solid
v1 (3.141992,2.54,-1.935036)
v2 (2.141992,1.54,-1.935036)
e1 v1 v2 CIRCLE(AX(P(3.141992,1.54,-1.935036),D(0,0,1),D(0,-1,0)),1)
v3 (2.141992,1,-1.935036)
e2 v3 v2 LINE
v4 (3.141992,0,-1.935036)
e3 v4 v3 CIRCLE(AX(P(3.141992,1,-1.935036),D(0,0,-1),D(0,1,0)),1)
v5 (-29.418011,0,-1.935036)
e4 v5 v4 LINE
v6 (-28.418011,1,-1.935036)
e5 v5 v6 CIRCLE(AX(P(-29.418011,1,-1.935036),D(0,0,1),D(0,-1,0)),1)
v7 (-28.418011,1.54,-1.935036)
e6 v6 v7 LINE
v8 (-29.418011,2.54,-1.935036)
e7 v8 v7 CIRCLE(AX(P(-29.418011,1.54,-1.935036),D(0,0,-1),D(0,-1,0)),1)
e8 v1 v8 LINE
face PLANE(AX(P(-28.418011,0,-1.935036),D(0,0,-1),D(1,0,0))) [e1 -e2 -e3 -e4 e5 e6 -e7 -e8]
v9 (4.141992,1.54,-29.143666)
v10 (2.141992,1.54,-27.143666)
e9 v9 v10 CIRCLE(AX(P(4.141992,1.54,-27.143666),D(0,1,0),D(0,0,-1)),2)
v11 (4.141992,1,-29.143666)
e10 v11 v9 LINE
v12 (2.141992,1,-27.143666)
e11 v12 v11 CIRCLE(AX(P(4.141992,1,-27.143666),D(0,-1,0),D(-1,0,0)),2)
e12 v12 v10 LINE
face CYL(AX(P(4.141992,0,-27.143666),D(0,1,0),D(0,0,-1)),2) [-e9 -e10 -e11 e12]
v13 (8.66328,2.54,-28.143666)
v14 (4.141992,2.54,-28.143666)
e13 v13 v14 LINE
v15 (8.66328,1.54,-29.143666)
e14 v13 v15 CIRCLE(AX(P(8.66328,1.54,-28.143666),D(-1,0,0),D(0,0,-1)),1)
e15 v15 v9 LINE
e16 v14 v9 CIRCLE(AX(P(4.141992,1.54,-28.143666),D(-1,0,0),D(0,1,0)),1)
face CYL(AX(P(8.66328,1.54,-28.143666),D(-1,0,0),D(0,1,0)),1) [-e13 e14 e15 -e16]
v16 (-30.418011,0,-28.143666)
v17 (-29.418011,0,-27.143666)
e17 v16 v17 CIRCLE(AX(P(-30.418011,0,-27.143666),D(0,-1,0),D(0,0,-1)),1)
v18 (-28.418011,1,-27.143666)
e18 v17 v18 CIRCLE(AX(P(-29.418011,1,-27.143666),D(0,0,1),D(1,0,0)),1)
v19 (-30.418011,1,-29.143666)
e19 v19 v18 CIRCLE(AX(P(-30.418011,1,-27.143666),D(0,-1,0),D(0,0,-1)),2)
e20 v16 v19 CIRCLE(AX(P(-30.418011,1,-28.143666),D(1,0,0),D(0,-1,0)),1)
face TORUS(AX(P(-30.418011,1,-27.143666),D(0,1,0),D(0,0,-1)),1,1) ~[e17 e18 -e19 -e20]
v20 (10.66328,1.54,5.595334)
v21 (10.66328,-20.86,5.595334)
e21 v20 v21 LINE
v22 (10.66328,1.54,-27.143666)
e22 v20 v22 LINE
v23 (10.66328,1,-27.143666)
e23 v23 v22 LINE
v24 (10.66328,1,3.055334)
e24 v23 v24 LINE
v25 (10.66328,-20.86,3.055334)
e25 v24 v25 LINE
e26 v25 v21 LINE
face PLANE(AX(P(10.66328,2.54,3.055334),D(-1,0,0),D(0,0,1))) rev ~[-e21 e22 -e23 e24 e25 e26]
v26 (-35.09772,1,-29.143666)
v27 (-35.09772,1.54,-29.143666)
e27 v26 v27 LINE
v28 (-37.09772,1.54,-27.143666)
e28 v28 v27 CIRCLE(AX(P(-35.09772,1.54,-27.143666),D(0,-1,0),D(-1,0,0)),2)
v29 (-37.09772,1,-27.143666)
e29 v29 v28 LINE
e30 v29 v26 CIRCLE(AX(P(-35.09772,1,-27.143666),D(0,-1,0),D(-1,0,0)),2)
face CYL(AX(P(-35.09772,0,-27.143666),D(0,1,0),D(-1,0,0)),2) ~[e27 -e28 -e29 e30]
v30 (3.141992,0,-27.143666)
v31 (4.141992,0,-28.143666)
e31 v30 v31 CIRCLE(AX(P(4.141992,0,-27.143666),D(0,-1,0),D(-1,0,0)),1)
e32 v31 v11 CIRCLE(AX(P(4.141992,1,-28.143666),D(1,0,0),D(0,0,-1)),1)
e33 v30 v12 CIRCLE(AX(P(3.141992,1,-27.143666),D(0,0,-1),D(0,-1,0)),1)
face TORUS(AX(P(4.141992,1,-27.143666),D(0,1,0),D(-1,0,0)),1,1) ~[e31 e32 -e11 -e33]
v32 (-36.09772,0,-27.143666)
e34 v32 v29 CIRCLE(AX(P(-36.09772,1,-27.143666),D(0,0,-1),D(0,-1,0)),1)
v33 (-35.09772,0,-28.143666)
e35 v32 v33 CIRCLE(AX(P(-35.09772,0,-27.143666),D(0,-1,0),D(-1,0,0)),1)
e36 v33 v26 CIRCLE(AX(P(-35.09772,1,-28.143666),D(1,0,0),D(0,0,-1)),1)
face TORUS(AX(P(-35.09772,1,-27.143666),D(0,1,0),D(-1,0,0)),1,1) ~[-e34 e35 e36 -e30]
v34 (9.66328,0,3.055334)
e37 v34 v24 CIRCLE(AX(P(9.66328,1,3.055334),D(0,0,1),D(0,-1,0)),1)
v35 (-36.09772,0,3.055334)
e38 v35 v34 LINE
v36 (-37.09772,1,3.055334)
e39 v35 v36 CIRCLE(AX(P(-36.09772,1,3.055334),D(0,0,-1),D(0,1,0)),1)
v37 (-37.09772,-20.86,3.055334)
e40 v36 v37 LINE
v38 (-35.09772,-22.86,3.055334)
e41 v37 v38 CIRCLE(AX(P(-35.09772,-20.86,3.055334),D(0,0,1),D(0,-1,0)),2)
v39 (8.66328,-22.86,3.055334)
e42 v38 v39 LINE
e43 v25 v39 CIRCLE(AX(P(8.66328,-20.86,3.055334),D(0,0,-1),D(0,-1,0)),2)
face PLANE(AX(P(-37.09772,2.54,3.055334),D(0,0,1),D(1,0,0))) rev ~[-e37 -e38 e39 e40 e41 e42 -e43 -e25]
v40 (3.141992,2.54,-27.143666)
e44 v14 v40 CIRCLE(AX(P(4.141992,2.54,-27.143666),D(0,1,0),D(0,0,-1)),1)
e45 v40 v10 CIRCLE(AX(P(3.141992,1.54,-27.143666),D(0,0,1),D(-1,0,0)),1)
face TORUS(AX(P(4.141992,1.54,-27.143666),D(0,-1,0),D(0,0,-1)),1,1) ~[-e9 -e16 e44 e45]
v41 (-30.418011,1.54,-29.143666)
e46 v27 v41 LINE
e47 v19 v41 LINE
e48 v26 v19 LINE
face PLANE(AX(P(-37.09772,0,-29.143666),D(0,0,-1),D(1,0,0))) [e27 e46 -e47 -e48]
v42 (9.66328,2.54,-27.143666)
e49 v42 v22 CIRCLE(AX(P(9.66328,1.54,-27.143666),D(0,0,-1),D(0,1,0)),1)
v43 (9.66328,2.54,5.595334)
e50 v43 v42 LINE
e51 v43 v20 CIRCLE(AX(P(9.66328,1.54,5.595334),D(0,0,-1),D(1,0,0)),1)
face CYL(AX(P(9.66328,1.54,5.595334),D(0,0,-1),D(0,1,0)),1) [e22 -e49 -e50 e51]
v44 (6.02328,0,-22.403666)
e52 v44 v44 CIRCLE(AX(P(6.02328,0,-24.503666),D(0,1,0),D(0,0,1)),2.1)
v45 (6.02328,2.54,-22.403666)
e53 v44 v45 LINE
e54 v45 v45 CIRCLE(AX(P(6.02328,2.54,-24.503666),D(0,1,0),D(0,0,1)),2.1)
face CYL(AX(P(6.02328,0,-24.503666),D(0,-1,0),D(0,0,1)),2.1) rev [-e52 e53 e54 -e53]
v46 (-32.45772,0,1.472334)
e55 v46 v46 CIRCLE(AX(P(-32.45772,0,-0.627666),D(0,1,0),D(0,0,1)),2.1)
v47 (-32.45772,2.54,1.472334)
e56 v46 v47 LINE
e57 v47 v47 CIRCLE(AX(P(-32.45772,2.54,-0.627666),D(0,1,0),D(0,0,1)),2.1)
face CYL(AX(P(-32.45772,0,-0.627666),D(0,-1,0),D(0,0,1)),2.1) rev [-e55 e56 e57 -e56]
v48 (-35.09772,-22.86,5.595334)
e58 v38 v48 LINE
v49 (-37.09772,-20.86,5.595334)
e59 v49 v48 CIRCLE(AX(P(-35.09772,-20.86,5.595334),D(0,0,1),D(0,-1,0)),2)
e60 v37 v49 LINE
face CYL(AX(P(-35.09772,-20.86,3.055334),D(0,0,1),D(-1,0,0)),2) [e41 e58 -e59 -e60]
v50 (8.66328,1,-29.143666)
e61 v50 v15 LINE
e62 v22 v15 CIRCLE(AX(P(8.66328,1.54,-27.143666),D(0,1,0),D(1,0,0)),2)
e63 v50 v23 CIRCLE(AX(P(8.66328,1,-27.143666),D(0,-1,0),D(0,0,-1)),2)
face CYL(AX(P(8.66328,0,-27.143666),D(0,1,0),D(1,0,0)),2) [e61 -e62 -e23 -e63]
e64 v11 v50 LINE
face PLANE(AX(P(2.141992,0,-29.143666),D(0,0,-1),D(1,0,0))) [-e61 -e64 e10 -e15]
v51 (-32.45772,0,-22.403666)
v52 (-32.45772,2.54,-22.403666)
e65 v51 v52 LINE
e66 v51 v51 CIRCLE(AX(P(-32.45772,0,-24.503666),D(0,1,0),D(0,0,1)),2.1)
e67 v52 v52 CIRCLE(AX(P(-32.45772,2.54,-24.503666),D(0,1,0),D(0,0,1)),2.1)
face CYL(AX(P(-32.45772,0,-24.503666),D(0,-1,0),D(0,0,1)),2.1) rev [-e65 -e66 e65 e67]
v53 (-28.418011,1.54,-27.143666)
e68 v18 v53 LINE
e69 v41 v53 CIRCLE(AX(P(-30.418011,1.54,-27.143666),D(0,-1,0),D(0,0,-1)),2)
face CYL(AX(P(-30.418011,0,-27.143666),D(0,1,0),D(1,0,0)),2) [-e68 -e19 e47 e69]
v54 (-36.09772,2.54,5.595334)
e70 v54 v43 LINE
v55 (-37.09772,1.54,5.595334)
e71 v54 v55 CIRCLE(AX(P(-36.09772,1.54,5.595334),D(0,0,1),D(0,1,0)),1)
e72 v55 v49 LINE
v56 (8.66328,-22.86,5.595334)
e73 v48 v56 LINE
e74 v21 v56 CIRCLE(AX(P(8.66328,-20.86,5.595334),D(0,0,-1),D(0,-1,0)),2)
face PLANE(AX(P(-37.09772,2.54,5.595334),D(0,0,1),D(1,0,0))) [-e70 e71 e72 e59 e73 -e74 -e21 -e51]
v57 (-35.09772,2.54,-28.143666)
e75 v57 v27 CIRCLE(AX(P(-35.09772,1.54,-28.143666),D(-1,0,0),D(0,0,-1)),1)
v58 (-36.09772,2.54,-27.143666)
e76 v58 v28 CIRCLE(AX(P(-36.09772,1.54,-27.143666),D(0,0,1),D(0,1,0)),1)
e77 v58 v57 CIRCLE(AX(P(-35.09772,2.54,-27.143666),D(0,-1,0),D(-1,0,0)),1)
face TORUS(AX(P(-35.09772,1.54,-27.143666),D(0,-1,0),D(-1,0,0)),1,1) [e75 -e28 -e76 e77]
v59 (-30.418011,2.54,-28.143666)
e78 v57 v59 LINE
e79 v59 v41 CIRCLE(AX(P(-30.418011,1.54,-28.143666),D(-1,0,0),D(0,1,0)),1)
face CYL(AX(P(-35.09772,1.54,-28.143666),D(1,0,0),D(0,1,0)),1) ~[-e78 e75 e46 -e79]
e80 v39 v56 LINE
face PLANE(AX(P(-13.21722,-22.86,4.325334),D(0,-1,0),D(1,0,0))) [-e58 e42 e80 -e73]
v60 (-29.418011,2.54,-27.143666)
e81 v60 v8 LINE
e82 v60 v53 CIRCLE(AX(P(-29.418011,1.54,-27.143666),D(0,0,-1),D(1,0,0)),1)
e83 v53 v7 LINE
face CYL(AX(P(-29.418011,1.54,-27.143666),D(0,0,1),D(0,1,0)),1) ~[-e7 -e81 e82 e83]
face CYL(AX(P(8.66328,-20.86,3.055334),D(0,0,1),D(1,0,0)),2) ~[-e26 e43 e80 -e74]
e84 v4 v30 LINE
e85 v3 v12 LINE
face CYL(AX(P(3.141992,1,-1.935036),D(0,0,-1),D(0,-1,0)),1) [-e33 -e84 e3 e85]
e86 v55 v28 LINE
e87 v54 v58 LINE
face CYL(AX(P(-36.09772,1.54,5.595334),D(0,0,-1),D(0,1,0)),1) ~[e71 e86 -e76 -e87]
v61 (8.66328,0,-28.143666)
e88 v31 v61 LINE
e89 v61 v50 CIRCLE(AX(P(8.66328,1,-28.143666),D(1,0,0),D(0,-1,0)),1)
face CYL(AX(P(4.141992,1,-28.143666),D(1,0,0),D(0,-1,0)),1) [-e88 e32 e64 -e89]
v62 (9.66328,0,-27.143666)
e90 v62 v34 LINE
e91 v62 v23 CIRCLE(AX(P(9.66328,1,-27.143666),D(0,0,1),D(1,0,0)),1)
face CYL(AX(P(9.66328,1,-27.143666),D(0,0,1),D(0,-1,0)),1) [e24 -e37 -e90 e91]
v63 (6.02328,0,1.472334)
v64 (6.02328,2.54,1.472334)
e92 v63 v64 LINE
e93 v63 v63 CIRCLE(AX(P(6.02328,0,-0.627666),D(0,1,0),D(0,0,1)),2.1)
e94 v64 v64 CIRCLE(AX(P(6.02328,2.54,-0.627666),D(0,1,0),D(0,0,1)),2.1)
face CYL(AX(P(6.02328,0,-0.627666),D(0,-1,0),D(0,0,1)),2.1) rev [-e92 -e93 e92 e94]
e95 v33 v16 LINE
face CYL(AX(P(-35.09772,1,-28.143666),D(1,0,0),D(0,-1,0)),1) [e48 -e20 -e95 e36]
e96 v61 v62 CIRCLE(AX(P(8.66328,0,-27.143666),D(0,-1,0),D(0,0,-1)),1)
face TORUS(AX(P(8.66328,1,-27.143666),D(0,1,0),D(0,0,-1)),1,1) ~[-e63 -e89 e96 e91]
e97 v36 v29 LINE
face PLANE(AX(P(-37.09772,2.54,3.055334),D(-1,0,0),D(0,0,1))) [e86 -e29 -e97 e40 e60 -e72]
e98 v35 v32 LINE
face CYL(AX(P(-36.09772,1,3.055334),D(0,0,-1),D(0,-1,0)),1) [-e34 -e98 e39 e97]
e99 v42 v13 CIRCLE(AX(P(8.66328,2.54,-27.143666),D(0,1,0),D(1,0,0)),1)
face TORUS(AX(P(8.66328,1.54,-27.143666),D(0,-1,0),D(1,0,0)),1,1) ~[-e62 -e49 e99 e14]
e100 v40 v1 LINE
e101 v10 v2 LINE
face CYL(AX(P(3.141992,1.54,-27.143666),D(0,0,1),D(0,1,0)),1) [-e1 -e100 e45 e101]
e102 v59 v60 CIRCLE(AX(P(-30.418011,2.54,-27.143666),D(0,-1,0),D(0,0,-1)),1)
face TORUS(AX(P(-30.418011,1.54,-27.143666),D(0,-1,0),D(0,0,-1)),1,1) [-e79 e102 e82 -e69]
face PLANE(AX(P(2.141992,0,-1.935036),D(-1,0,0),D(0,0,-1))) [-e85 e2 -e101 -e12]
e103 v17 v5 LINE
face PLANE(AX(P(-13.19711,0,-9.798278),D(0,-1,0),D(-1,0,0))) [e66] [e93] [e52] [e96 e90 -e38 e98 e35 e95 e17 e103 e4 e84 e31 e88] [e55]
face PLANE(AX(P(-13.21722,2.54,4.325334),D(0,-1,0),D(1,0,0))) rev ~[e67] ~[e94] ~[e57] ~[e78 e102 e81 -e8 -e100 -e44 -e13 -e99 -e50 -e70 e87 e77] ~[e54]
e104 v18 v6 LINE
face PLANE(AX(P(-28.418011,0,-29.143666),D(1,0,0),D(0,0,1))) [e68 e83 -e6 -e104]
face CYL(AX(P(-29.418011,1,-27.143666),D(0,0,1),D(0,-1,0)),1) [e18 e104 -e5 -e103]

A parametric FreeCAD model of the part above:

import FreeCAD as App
import Part
import Sketcher


def edges_at(feature, points):
    """Names of the edges that pass closest to the given points."""
    edges = feature.Shape.Edges
    near = lambda p: min(range(len(edges)), key=lambda i: edges[i].distToShape(Part.Vertex(*p))[0])
    return sorted({f"Edge{near(p) + 1}" for p in points})


def add_polygon(sketch, points):
    """Adds a closed chain of lines whose ends are joined by coincident constraints."""
    first, n = sketch.GeometryCount, len(points)
    for a, b in zip(points, points[1:] + points[:1]):
        sketch.addGeometry(Part.LineSegment(App.Vector(*a, 0), App.Vector(*b, 0)), False)
    for i in range(n):
        sketch.addConstraint(Sketcher.Constraint("Coincident", first + i, 2, first + (i + 1) % n, 1))

doc = App.newDocument("Part")
body = doc.addObject("PartDesign::Body", "Body")

sketch1 = doc.addObject("Sketcher::SketchObject", "Sketch")
body.addObject(sketch1)
sketch1.AttachmentSupport = (doc.XZ_Plane, [""])
sketch1.MapMode = "FlatFace"
add_polygon(sketch1, [(2.1, -1.9), (-28.4, -1.9), (-28.4, -29.1), (-37.1, -29.1), (-37.1, 3.1), (10.7, 3.1), (10.7, -29.1), (2.1, -29.1)])
sketch1.addGeometry(Part.Circle(App.Vector(6, -0.6, 0), App.Vector(0, 0, 1), 2.1), False)
sketch1.addGeometry(Part.Circle(App.Vector(-32.5, -0.6, 0), App.Vector(0, 0, 1), 2.1), False)
sketch1.addGeometry(Part.Circle(App.Vector(6, -24.5, 0), App.Vector(0, 0, 1), 2.1), False)
sketch1.addGeometry(Part.Circle(App.Vector(-32.5, -24.5, 0), App.Vector(0, 0, 1), 2.1), False)
sketch1.addConstraint([
    Sketcher.Constraint("Horizontal", 0),
    Sketcher.Constraint("Vertical", 1),
    Sketcher.Constraint("Horizontal", 2),
    Sketcher.Constraint("Vertical", 3),
    Sketcher.Constraint("Horizontal", 4),
    Sketcher.Constraint("Vertical", 5),
    Sketcher.Constraint("Horizontal", 6),
    Sketcher.Constraint("Vertical", 7),
    Sketcher.Constraint("Equal", 8, 9),
    Sketcher.Constraint("Equal", 9, 10),
    Sketcher.Constraint("Equal", 10, 11),
    Sketcher.Constraint("Horizontal", 8, 3, 9, 3),
    Sketcher.Constraint("Horizontal", 10, 3, 11, 3),
    Sketcher.Constraint("Horizontal", 2, 2, 5, 2),
    Sketcher.Constraint("Vertical", 8, 3, 10, 3),
    Sketcher.Constraint("Vertical", 9, 3, 11, 3),
    Sketcher.Constraint("Diameter", 8, 4.2),
    Sketcher.Constraint("DistanceX", 4, 1, 4, 2, 47.761),
    Sketcher.Constraint("DistanceY", 3, 1, 3, 2, 32.199),
    Sketcher.Constraint("DistanceY", 1, 2, 11, 3, 4.64),
    Sketcher.Constraint("DistanceX", 2, 2, 11, 3, 4.64),
    Sketcher.Constraint("DistanceX", 8, 3, 4, 2, 4.64),
    Sketcher.Constraint("DistanceY", 10, 3, 8, 3, 23.876),
    Sketcher.Constraint("DistanceX", 2, 2, 2, 1, 8.679709),
    Sketcher.Constraint("DistanceX", 6, 2, 6, 1, 8.521288),
    Sketcher.Constraint("DistanceY", 1, 2, 1, 1, 27.20863),
    Sketcher.Constraint("DistanceX", -1, 1, 8, 3, 6.02328),
    Sketcher.Constraint("DistanceY", 8, 3, -1, 1, 0.627666),
])
pad1 = doc.addObject("PartDesign::Pad", "Pad")
body.addObject(pad1)
pad1.Profile = sketch1
pad1.Length = 2.54
pad1.Reversed = True

sketch2 = doc.addObject("Sketcher::SketchObject", "Sketch001")
body.addObject(sketch2)
sketch2.AttachmentSupport = (doc.XZ_Plane, [""])
sketch2.MapMode = "FlatFace"
sketch2.AttachmentOffset = App.Placement(App.Vector(0, 0, -2.54), App.Rotation())
add_polygon(sketch2, [(-37.1, 5.6), (-37.1, 3.1), (10.7, 3.1), (10.7, 5.6)])
sketch2.addConstraint([
    Sketcher.Constraint("Vertical", 0),
    Sketcher.Constraint("Horizontal", 1),
    Sketcher.Constraint("Vertical", 2),
    Sketcher.Constraint("Horizontal", 3),
    Sketcher.Constraint("DistanceY", 0, 2, 0, 1, 2.54),
    Sketcher.Constraint("DistanceX", 1, 1, 1, 2, 47.761),
    Sketcher.Constraint("DistanceX", 0, 2, -1, 1, 37.09772),
    Sketcher.Constraint("DistanceY", -1, 1, 0, 2, 3.055334),
])
pad2 = doc.addObject("PartDesign::Pad", "Pad001")
body.addObject(pad2)
pad2.Profile = sketch2
pad2.Length = 25.4
doc.recompute()

fillet = doc.addObject("PartDesign::Fillet", "Fillet")
body.addObject(fillet)
fillet.Base = (pad2, edges_at(pad2, [
    (2.142, 1.27, -29.144),
    (10.663, 1.27, -29.144),
    (-37.098, 1.27, -29.144),
    (-28.418, 1.27, -29.144),
    (-37.098, -22.86, 4.325),
    (10.663, -22.86, 4.325),
]))
fillet.Radius = 2
doc.recompute()

fillet2 = doc.addObject("PartDesign::Fillet", "Fillet001")
body.addObject(fillet2)
fillet2.Base = (fillet, edges_at(fillet, [
    (10.663, 0, -12.044),
    (-28.418, 0, -14.539),
    (10.663, 2.54, -10.774),
    (-28.418, 2.54, -14.539),
    (-32.758, 0, -29.144),
    (-32.758, 2.54, -29.144),
    (2.142, 0, -14.539),
    (6.403, 0, -29.144),
    (-37.098, 0, -12.044),
    (10.077, 0, -28.558),
    (2.728, 0, -28.558),
    (-36.512, 0, -28.558),
    (-29.004, 0, -28.558),
    (-37.098, 2.54, -10.774),
    (6.403, 2.54, -29.144),
    (2.142, 2.54, -14.539),
    (10.077, 2.54, -28.558),
    (2.728, 2.54, -28.558),
    (-36.512, 2.54, -28.558),
    (-29.004, 2.54, -28.558),
]))
fillet2.Radius = 1

doc.recompute()
